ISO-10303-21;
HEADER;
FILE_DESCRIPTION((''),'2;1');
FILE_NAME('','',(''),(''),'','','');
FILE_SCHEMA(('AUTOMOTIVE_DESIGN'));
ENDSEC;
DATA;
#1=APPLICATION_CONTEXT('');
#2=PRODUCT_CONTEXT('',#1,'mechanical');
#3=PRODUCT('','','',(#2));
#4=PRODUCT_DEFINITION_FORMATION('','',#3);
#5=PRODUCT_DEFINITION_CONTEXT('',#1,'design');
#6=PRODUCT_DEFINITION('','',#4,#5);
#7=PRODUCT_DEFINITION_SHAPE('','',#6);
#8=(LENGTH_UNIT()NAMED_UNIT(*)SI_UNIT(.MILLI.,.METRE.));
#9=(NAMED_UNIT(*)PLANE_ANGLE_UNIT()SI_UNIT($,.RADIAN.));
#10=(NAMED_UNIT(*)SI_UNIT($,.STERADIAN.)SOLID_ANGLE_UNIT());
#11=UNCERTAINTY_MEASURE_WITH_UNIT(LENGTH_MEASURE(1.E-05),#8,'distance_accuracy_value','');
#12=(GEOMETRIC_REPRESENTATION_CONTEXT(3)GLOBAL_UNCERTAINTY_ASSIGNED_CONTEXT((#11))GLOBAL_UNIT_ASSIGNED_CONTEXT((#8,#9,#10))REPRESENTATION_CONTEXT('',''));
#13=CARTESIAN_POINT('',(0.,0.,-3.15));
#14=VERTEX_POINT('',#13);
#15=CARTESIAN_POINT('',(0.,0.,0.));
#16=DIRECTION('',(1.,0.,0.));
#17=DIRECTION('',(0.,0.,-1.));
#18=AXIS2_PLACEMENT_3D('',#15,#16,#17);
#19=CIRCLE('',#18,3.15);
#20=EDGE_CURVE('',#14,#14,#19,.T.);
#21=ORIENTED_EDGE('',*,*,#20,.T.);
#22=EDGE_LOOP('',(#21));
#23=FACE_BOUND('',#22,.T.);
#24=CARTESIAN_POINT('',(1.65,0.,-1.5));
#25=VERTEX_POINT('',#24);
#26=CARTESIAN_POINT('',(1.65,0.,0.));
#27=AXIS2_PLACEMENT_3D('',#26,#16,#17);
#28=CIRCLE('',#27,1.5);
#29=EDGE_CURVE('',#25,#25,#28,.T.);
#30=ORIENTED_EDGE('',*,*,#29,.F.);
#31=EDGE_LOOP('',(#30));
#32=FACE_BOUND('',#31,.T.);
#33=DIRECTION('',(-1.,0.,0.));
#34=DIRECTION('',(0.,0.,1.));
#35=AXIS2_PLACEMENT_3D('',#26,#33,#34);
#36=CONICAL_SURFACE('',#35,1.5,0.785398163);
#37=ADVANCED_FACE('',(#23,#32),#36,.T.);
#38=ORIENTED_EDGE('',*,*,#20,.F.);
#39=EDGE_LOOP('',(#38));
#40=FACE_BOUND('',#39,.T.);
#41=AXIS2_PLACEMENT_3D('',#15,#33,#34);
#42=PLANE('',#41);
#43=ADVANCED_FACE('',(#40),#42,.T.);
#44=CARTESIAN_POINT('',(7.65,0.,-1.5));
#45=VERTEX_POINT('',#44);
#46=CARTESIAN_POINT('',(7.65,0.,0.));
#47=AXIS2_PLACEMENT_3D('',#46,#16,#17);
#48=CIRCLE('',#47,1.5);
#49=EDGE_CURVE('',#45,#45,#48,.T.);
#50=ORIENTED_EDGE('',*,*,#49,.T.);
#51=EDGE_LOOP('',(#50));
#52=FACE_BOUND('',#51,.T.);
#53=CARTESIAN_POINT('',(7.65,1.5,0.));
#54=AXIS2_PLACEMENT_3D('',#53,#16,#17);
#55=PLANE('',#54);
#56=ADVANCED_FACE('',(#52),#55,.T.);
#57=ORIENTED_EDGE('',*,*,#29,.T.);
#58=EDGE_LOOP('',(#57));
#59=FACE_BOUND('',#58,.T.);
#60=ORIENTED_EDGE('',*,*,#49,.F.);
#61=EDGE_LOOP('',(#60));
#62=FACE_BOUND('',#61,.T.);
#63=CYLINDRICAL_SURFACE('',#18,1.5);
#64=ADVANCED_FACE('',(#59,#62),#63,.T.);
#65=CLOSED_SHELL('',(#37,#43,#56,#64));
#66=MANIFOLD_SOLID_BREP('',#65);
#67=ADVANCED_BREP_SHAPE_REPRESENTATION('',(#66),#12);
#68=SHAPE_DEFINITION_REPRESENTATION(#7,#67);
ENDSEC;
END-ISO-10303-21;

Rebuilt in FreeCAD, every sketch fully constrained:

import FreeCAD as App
import Part
import Sketcher
Q = App.Units.Quantity


def add_polygon(sketch, points):
    """Adds a closed chain of lines whose ends are joined by coincident constraints."""
    first, n = sketch.GeometryCount, len(points)
    for a, b in zip(points, points[1:] + points[:1]):
        sketch.addGeometry(Part.LineSegment(App.Vector(*a, 0), App.Vector(*b, 0)), False)
    for i in range(n):
        sketch.addConstraint(Sketcher.Constraint("Coincident", first + i, 2, first + (i + 1) % n, 1))

doc = App.newDocument("Part")
body = doc.addObject("PartDesign::Body", "Body")

# Sketch on XY plane
sketch1 = body.newObject("Sketcher::SketchObject", "Sketch")
sketch1.AttachmentSupport = (doc.getObject("XY_Plane"), [""])
sketch1.MapMode = "FlatFace"
add_polygon(sketch1, [(0, 3.1), (0, 0), (7.7, 0), (7.7, 1.5), (1.6, 1.5)])  # lines 0-4
sketch1.addConstraint([
    Sketcher.Constraint("Vertical", 0),
    Sketcher.Constraint("Horizontal", 1),
    Sketcher.Constraint("Vertical", 2),
    Sketcher.Constraint("Horizontal", 3),
    Sketcher.Constraint("Coincident", 0, 2, -1, 1),
    Sketcher.Constraint("DistanceX", 3, 2, 3, 1, 6.0),
    Sketcher.Constraint("Angle", 4, Q("135 deg")),
    Sketcher.Constraint("DistanceY", 2, 1, 2, 2, 1.5),
    Sketcher.Constraint("DistanceX", 1, 1, 1, 2, 7.65),
])
revolution = body.newObject("PartDesign::Revolution", "Revolution")
revolution.Profile = sketch1
revolution.ReferenceAxis = (sketch1, ["H_Axis"])
revolution.Angle = 360

doc.recompute()
